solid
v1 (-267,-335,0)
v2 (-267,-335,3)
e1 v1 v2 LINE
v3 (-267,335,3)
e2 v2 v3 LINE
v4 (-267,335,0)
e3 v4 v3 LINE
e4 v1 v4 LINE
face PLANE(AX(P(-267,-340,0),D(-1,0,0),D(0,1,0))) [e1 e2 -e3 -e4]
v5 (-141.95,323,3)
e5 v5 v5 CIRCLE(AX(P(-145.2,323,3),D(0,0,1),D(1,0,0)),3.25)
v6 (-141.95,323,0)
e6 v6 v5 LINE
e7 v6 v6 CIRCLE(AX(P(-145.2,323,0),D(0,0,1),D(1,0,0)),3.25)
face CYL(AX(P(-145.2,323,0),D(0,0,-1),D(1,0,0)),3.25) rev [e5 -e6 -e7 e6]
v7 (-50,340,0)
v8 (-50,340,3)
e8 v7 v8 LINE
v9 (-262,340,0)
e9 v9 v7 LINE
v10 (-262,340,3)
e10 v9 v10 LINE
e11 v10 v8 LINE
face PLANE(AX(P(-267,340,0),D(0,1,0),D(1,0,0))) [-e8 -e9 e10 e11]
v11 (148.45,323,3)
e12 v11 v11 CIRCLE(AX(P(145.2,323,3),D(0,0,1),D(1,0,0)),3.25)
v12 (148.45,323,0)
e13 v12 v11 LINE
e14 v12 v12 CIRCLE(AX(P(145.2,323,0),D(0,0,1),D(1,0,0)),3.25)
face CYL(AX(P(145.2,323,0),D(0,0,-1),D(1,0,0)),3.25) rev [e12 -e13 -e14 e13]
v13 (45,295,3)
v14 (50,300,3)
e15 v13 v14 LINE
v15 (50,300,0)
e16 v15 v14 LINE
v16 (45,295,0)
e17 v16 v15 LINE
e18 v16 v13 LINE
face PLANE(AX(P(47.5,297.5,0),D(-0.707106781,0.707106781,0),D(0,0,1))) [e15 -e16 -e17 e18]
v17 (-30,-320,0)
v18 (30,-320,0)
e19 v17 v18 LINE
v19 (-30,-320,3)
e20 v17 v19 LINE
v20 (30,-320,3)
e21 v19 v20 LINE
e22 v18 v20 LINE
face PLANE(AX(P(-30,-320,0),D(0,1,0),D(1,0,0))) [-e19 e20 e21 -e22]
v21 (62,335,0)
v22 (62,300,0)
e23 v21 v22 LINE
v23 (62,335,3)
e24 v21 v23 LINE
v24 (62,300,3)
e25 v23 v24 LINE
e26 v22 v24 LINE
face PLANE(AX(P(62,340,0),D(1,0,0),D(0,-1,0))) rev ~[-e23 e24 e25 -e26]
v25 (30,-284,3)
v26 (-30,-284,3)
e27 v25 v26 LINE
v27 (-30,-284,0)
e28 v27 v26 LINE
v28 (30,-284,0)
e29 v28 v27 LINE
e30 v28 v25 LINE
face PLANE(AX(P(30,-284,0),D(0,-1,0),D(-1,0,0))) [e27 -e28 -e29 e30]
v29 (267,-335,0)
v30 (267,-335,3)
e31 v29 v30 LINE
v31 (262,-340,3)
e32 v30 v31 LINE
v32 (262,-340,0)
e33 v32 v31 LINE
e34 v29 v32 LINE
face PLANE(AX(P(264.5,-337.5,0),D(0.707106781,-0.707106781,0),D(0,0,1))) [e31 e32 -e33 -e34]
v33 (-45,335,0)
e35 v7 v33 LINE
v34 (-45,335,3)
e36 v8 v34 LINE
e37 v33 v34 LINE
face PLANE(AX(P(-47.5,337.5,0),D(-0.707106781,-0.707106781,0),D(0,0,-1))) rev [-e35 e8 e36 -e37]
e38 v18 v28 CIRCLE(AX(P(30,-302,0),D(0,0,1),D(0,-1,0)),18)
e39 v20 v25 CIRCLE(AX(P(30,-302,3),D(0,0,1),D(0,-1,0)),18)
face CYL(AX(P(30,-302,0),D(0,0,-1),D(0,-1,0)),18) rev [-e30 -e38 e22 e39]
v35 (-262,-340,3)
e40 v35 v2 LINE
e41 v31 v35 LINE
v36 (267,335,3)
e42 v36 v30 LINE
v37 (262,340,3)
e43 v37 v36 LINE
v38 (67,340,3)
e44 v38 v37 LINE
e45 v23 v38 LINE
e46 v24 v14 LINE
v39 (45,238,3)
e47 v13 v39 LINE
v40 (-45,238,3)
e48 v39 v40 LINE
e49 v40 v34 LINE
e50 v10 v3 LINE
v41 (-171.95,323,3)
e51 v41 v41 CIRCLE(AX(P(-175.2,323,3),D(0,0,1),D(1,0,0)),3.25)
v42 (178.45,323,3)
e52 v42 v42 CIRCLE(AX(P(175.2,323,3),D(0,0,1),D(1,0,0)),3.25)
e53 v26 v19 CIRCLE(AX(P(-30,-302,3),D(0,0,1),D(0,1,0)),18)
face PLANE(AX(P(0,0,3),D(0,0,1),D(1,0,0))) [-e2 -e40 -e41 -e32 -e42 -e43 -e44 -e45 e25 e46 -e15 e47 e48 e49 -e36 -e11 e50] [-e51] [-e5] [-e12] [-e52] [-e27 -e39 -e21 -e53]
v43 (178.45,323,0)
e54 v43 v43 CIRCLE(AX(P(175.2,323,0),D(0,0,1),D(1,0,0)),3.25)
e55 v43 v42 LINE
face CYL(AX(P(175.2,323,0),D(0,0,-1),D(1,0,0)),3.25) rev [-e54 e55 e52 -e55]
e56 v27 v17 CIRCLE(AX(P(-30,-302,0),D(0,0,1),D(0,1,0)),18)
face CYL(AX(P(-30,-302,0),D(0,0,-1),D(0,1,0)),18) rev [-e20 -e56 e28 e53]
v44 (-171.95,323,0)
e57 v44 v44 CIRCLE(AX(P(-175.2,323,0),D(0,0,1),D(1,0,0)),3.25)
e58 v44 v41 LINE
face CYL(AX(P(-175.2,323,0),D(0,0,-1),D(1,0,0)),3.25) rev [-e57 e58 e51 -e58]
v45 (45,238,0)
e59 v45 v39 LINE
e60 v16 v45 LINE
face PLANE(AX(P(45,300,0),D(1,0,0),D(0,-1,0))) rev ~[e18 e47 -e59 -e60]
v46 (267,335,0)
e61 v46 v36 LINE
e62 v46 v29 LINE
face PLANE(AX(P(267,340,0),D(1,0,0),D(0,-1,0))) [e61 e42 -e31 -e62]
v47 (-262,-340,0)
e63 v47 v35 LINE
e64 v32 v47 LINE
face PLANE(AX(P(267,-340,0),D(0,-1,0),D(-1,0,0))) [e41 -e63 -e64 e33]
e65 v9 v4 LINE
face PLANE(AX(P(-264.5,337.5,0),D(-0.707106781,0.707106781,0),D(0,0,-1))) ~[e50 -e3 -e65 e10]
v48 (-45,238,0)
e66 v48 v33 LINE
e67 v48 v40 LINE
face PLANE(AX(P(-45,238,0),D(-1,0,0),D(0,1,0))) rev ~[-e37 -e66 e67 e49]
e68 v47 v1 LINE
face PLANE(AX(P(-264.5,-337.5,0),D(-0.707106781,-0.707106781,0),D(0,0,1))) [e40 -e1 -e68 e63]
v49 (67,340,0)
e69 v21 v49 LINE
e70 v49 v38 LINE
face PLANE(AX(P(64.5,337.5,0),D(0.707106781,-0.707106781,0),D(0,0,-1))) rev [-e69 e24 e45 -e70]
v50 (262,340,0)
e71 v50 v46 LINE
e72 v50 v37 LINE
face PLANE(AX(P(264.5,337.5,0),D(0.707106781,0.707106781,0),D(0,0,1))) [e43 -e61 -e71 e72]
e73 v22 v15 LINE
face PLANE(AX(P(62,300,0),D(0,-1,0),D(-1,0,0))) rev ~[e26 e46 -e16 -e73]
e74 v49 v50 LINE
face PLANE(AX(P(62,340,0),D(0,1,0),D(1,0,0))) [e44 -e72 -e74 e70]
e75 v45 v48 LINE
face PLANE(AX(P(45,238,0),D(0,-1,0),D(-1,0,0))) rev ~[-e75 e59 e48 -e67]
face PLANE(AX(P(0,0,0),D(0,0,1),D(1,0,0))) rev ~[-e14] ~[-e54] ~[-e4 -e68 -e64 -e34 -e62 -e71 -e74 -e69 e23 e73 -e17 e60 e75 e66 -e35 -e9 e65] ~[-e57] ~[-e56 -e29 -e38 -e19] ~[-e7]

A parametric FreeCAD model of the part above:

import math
import FreeCAD as App
import Part
import Sketcher
from FreeCAD import Vector


def edges_at(feature, points):
    """Names of the edges that pass closest to the given points."""
    edges = feature.Shape.Edges
    near = lambda p: min(range(len(edges)), key=lambda i: edges[i].distToShape(Part.Vertex(*p))[0])
    return sorted({f"Edge{near(p) + 1}" for p in points})

doc = App.newDocument("Part")
params = doc.addObject("Spreadsheet::Sheet", "Params")
for row, (alias, value) in enumerate([
    ("sketch1_radius", "18 mm"),
    ("sketch1_diameter", "6.5 mm"),
    ("sketch1_width", "534 mm"),
    ("sketch1_width2", "17 mm"),
    ("sketch1_width3", "60 mm"),
    ("pad1_length", "3 mm"),
    ("chamfer_size", "5 mm"),
], start=1):
    params.set(f"A{row}", alias)
    params.set(f"B{row}", "=" + value)
    params.setAlias(f"B{row}", alias)

body = doc.addObject("PartDesign::Body", "Body")

sketch1 = body.newObject("Sketcher::SketchObject", "Sketch")
sketch1.AttachmentSupport = (doc.getObject("XY_Plane"), [""])
sketch1.MapMode = "FlatFace"
sketch1.addGeometry(Part.LineSegment(Vector(-45, 340, 0), Vector(-267, 340, 0)), False)
sketch1.addGeometry(Part.LineSegment(Vector(-267, 340, 0), Vector(-267, -340, 0)), False)
sketch1.addGeometry(Part.LineSegment(Vector(-267, -340, 0), Vector(267, -340, 0)), False)
sketch1.addGeometry(Part.LineSegment(Vector(267, -340, 0), Vector(267, 340, 0)), False)
sketch1.addGeometry(Part.LineSegment(Vector(267, 340, 0), Vector(62, 340, 0)), False)
sketch1.addGeometry(Part.LineSegment(Vector(62, 340, 0), Vector(62, 300, 0)), False)
sketch1.addGeometry(Part.LineSegment(Vector(62, 300, 0), Vector(45, 300, 0)), False)
sketch1.addGeometry(Part.LineSegment(Vector(45, 300, 0), Vector(45, 238, 0)), False)
sketch1.addGeometry(Part.LineSegment(Vector(45, 238, 0), Vector(-45, 238, 0)), False)
sketch1.addGeometry(Part.LineSegment(Vector(-45, 238, 0), Vector(-45, 340, 0)), False)
sketch1.addGeometry(Part.LineSegment(Vector(30, -320, 0), Vector(-30, -320, 0)), False)
sketch1.addGeometry(Part.ArcOfCircle(Part.Circle(Vector(-30, -302, 0), Vector(0, 0, 1), 18), math.radians(90), math.radians(270)), False)
sketch1.addGeometry(Part.LineSegment(Vector(-30, -284, 0), Vector(30, -284, 0)), False)
sketch1.addGeometry(Part.ArcOfCircle(Part.Circle(Vector(30, -302, 0), Vector(0, 0, 1), 18), math.radians(-90), math.radians(90)), False)
sketch1.addGeometry(Part.Circle(Vector(-175.2, 323, 0), Vector(0, 0, 1), 3.25), False)
sketch1.addGeometry(Part.Circle(Vector(-145.2, 323, 0), Vector(0, 0, 1), 3.25), False)
sketch1.addGeometry(Part.Circle(Vector(145.2, 323, 0), Vector(0, 0, 1), 3.25), False)
sketch1.addGeometry(Part.Circle(Vector(175.2, 323, 0), Vector(0, 0, 1), 3.25), False)
sketch1.addConstraint(Sketcher.Constraint("Coincident", 0, 2, 1, 1))
sketch1.addConstraint(Sketcher.Constraint("Coincident", 1, 2, 2, 1))
sketch1.addConstraint(Sketcher.Constraint("Coincident", 2, 2, 3, 1))
sketch1.addConstraint(Sketcher.Constraint("Coincident", 3, 2, 4, 1))
sketch1.addConstraint(Sketcher.Constraint("Coincident", 4, 2, 5, 1))
sketch1.addConstraint(Sketcher.Constraint("Coincident", 5, 2, 6, 1))
sketch1.addConstraint(Sketcher.Constraint("Coincident", 6, 2, 7, 1))
sketch1.addConstraint(Sketcher.Constraint("Coincident", 7, 2, 8, 1))
sketch1.addConstraint(Sketcher.Constraint("Coincident", 8, 2, 9, 1))
sketch1.addConstraint(Sketcher.Constraint("Coincident", 9, 2, 0, 1))
sketch1.addConstraint(Sketcher.Constraint("Tangent", 10, 2, 11, 2))
sketch1.addConstraint(Sketcher.Constraint("Tangent", 11, 1, 12, 1))
sketch1.addConstraint(Sketcher.Constraint("Tangent", 12, 2, 13, 2))
sketch1.addConstraint(Sketcher.Constraint("Tangent", 13, 1, 10, 1))
sketch1.addConstraint(Sketcher.Constraint("Horizontal", 0))
sketch1.addConstraint(Sketcher.Constraint("Vertical", 1))
sketch1.addConstraint(Sketcher.Constraint("Horizontal", 2))
sketch1.addConstraint(Sketcher.Constraint("Vertical", 3))
sketch1.addConstraint(Sketcher.Constraint("Horizontal", 4))
sketch1.addConstraint(Sketcher.Constraint("Vertical", 5))
sketch1.addConstraint(Sketcher.Constraint("Horizontal", 6))
sketch1.addConstraint(Sketcher.Constraint("Vertical", 7))
sketch1.addConstraint(Sketcher.Constraint("Horizontal", 8))
sketch1.addConstraint(Sketcher.Constraint("Vertical", 9))
sketch1.addConstraint(Sketcher.Constraint("Horizontal", 10))
sketch1.addConstraint(Sketcher.Constraint("Horizontal", 12))
sketch1.addConstraint(Sketcher.Constraint("Equal", 14, 15))
sketch1.addConstraint(Sketcher.Constraint("Equal", 15, 16))
sketch1.addConstraint(Sketcher.Constraint("Equal", 16, 17))
sketch1.addConstraint(Sketcher.Constraint("Symmetric", 0, 2, 2, 2, -1, 1))
sketch1.addConstraint(Sketcher.Constraint("Symmetric", 15, 3, 16, 3, -2))
sketch1.addConstraint(Sketcher.Constraint("Symmetric", 14, 3, 17, 3, -2))
sketch1.addConstraint(Sketcher.Constraint("Horizontal", 14, 3, 15, 3))
sketch1.addConstraint(Sketcher.Constraint("Horizontal", 0, 2, 3, 2))
sketch1.addConstraint(Sketcher.Constraint("Radius", 11, 18.0))
sketch1.addConstraint(Sketcher.Constraint("Diameter", 14, 6.5))
sketch1.addConstraint(Sketcher.Constraint("DistanceX", 2, 1, 2, 2, 534.0))
sketch1.addConstraint(Sketcher.Constraint("DistanceX", 6, 2, 6, 1, 17.0))
sketch1.addConstraint(Sketcher.Constraint("DistanceX", 10, 2, 10, 1, 60.0))
sketch1.addConstraint(Sketcher.Constraint("DistanceY", 1, 2, 1, 1, 680.0))
sketch1.addConstraint(Sketcher.Constraint("DistanceY", 5, 2, 5, 1, 40.0))
sketch1.addConstraint(Sketcher.Constraint("DistanceY", 7, 2, 7, 1, 62.0))
sketch1.addConstraint(Sketcher.Constraint("DistanceX", -1, 1, 4, 2, 62.0))
sketch1.addConstraint(Sketcher.Constraint("DistanceX", 8, 2, -1, 1, 45.0))
sketch1.addConstraint(Sketcher.Constraint("DistanceY", 14, 3, 0, 2, 17.0))
sketch1.addConstraint(Sketcher.Constraint("DistanceY", 1, 2, 10, 2, 20.0))
sketch1.addConstraint(Sketcher.Constraint("DistanceX", 8, 2, 10, 2, 15.0))
sketch1.addConstraint(Sketcher.Constraint("DistanceX", 14, 3, 15, 3, 30.0))
sketch1.addConstraint(Sketcher.Constraint("DistanceX", 14, 3, -1, 1, 175.2))
sketch1.setExpression("Constraints[34]", "Params.sketch1_radius")
sketch1.setExpression("Constraints[35]", "Params.sketch1_diameter")
sketch1.setExpression("Constraints[36]", "Params.sketch1_width")
sketch1.setExpression("Constraints[37]", "Params.sketch1_width2")
sketch1.setExpression("Constraints[38]", "Params.sketch1_width3")
pad1 = body.newObject("PartDesign::Pad", "Pad")
pad1.Profile = sketch1
pad1.setExpression("Length", "Params.pad1_length")
doc.recompute()

chamfer = body.newObject("PartDesign::Chamfer", "Chamfer")
chamfer.Base = (pad1, edges_at(pad1, [
    (-45, 340, 1.5),
    (45, 300, 1.5),
    (62, 340, 1.5),
    (267, 340, 1.5),
    (-267, 340, 1.5),
    (-267, -340, 1.5),
    (267, -340, 1.5),
]))
chamfer.setExpression("Size", "Params.chamfer_size")

doc.recompute()
